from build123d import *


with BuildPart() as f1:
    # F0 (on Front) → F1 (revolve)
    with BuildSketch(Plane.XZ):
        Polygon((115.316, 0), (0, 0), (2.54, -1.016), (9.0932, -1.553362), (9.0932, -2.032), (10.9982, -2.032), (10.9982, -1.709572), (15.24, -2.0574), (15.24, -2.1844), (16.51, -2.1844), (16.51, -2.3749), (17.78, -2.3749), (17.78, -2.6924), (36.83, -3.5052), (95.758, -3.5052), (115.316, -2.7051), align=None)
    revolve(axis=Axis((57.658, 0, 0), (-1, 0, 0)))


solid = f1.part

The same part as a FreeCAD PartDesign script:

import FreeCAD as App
import Part
import Sketcher

V = App.Vector
Q = App.Units.Quantity


def add_polygon(sketch, points):
    """Adds a closed chain of lines whose ends are joined by coincident constraints."""
    first, n = sketch.GeometryCount, len(points)
    for a, b in zip(points, points[1:] + points[:1]):
        sketch.addGeometry(Part.LineSegment(App.Vector(*a, 0), App.Vector(*b, 0)), False)
    for i in range(n):
        sketch.addConstraint(Sketcher.Constraint("Coincident", first + i, 2, first + (i + 1) % n, 1))

doc = App.newDocument("Part")
body = doc.addObject("PartDesign::Body", "Body")

# Sketch on XZ plane
sketch1 = body.newObject("Sketcher::SketchObject", "Sketch")
sketch1.AttachmentSupport = (doc.getObject("XZ_Plane"), [""])
sketch1.MapMode = "FlatFace"
add_polygon(sketch1, [(115.32, 0), (0, 0), (2.54, -1.02), (9.09, -1.55), (9.09, -2.03), (11, -2.03), (11, -1.71), (15.24, -2.06), (15.24, -2.18), (16.51, -2.18), (16.51, -2.37), (17.78, -2.37), (17.78, -2.69), (36.83, -3.51), (95.76, -3.51), (115.32, -2.71)])  # lines 0-15
sketch1.addConstraint([
    Sketcher.Constraint("Horizontal", 0),
    Sketcher.Constraint("Vertical", 3),
    Sketcher.Constraint("Horizontal", 4),
    Sketcher.Constraint("Vertical", 5),
    Sketcher.Constraint("Vertical", 7),
    Sketcher.Constraint("Horizontal", 8),
    Sketcher.Constraint("Vertical", 9),
    Sketcher.Constraint("Horizontal", 10),
    Sketcher.Constraint("Vertical", 11),
    Sketcher.Constraint("Horizontal", 13),
    Sketcher.Constraint("Vertical", 15),
    Sketcher.Constraint("Coincident", 0, 2, -1, 1),
    Sketcher.Constraint("Parallel", 2, 6),
    Sketcher.Constraint("Equal", 8, 10),
    Sketcher.Constraint("DistanceX", 0, 2, 0, 1, Q("4.54 in")),
    Sketcher.Constraint("DistanceX", 8, 1, 8, 2, Q("0.05 in")),
    Sketcher.Constraint("DistanceX", 13, 1, 13, 2, Q("2.32 in")),
    Sketcher.Constraint("DistanceX", -1, 1, 1, 2, Q("0.1 in")),
    Sketcher.Constraint("DistanceX", -1, 1, 6, 2, Q("0.6 in")),
    Sketcher.Constraint("DistanceX", 9, 2, 12, 2, Q("0.8 in")),
    Sketcher.Constraint("DistanceX", 4, 1, 4, 2, Q("0.075 in")),
    Sketcher.Constraint("DistanceY", 7, 2, 7, 1, Q("0.005 in")),
    Sketcher.Constraint("DistanceY", 1, 2, -1, 1, Q("0.04 in")),
    Sketcher.Constraint("DistanceY", 3, 2, -1, 1, Q("0.08 in")),
    Sketcher.Constraint("DistanceY", 11, 2, 8, 2, Q("0.02 in")),
    Sketcher.Constraint("DistanceY", 9, 2, 9, 1, Q("0.0075 in")),
    Sketcher.Constraint("DistanceY", 15, 1, 15, 2, Q("0.1065 in")),
    Sketcher.Constraint("DistanceX", -1, 1, 2, 2, Q("0.358 in")),
    Sketcher.Constraint("DistanceY", 6, 2, -1, 1, Q("0.081 in")),
    Sketcher.Constraint("DistanceY", 12, 2, -1, 1, Q("0.138 in")),
    Sketcher.Constraint("DistanceY", 3, 2, 3, 1, 0.478638),
])
revolution = body.newObject("PartDesign::Revolution", "Revolution")
revolution.Profile = sketch1
revolution.ReferenceAxis = (sketch1, ["H_Axis"])
revolution.Angle = 360

doc.recompute()
